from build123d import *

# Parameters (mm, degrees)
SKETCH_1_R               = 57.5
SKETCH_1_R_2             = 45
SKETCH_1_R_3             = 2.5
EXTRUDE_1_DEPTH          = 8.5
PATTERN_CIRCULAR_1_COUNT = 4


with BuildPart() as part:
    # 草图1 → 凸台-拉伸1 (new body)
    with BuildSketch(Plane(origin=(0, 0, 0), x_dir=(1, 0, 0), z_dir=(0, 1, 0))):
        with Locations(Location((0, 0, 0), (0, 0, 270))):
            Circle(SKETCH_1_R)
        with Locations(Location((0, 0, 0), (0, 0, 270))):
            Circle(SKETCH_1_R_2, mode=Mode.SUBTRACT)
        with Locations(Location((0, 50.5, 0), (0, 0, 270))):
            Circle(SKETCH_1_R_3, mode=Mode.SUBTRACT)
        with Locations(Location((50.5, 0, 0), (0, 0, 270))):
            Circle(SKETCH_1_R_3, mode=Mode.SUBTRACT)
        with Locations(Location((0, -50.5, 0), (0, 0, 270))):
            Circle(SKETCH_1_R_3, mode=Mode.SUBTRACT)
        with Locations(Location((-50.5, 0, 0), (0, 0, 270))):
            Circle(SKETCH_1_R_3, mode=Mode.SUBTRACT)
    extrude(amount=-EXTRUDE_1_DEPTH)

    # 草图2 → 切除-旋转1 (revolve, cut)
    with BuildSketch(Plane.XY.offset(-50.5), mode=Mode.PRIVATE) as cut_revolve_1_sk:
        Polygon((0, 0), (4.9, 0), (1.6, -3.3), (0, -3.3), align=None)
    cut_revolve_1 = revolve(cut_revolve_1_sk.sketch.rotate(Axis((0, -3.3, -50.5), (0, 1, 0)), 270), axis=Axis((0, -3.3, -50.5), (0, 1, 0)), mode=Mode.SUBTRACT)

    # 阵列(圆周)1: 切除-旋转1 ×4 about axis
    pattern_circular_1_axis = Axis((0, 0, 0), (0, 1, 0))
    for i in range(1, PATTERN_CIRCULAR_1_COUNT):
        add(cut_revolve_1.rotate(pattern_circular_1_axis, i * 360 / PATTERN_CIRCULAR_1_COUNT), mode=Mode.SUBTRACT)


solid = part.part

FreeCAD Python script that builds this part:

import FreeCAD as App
import Part
import Sketcher

V = App.Vector
Q = App.Units.Quantity

doc = App.newDocument("Part")
body = doc.addObject("PartDesign::Body", "Body")

# Sketch on XZ plane
sketch1 = body.newObject("Sketcher::SketchObject", "Sketch")
sketch1.AttachmentSupport = (doc.getObject("XZ_Plane"), [""])
sketch1.MapMode = "FlatFace"
sketch1.addGeometry([
    Part.Circle(V(0, 0, 0), V(0, 0, 1), 57.5),  # 0
    Part.Circle(V(0, -50.5, 0), V(0, 0, 1), 2.5),  # 1
    Part.Circle(V(-50.5, 0, 0), V(0, 0, 1), 2.5),  # 2
    Part.Circle(V(50.5, 0, 0), V(0, 0, 1), 2.5),  # 3
    Part.Circle(V(0, 0, 0), V(0, 0, 1), 45),  # 4
    Part.Circle(V(0, 50.5, 0), V(0, 0, 1), 2.5),  # 5
], False)
sketch1.addConstraint([
    Sketcher.Constraint("Coincident", 0, 3, -1, 1),
    Sketcher.Constraint("Coincident", 4, 3, -1, 1),
    Sketcher.Constraint("Equal", 1, 2),
    Sketcher.Constraint("Equal", 2, 3),
    Sketcher.Constraint("Equal", 3, 5),
    Sketcher.Constraint("Symmetric", 2, 3, 3, 3, -1, 1),
    Sketcher.Constraint("Symmetric", 1, 3, 5, 3, -1, 1),
    Sketcher.Constraint("PointOnObject", 1, 3, -2),
    Sketcher.Constraint("PointOnObject", 2, 3, -1),
    Sketcher.Constraint("Diameter", 0, 115.0),
    Sketcher.Constraint("Diameter", 1, 5.0),
    Sketcher.Constraint("Diameter", 4, 90.0),
    Sketcher.Constraint("DistanceX", 2, 3, 3, 3, 101.0),
    Sketcher.Constraint("DistanceY", 1, 3, 5, 3, 101.0),
])
pad1 = body.newObject("PartDesign::Pad", "Pad")
pad1.Profile = sketch1
pad1.Length = 8.5

# Sketch on XY plane
sketch2 = body.newObject("Sketcher::SketchObject", "Sketch001")
sketch2.AttachmentSupport = (doc.getObject("XY_Plane"), [""])
sketch2.MapMode = "FlatFace"
sketch2.AttachmentOffset = App.Placement(V(0, 0, -50.5), App.Rotation())
sketch2.addGeometry([
    Part.LineSegment(V(4.9, 0, 0), V(0, 0, 0)),
    Part.LineSegment(V(0, 0, 0), V(0, -3.3, 0)),
    Part.LineSegment(V(0, -3.3, 0), V(1.6, -3.3, 0)),
    Part.LineSegment(V(1.6, -3.3, 0), V(4.9, 0, 0)),
], False)
sketch2.addConstraint([
    Sketcher.Constraint("Coincident", 0, 2, 1, 1),
    Sketcher.Constraint("Coincident", 1, 2, 2, 1),
    Sketcher.Constraint("Coincident", 2, 2, 3, 1),
    Sketcher.Constraint("Coincident", 3, 2, 0, 1),
    Sketcher.Constraint("Horizontal", 0),
    Sketcher.Constraint("Vertical", 1),
    Sketcher.Constraint("Horizontal", 2),
    Sketcher.Constraint("Coincident", 0, 2, -1, 1),
    Sketcher.Constraint("Angle", 3, Q("45 deg")),
    Sketcher.Constraint("DistanceX", 0, 2, 0, 1, 4.9),
    Sketcher.Constraint("DistanceX", 2, 1, 2, 2, 1.6),
])
groove = body.newObject("PartDesign::Groove", "Groove")
groove.Profile = sketch2
groove.ReferenceAxis = (sketch2, ["V_Axis"])
groove.Angle = 360
doc.recompute()

polarpattern = body.newObject("PartDesign::PolarPattern", "PolarPattern")
polarpattern.Originals = [groove]
polarpattern.Axis = (doc.getObject("Y_Axis"), [""])
polarpattern.Angle = 360
polarpattern.Occurrences = 4
body.Tip = polarpattern

doc.recompute()
